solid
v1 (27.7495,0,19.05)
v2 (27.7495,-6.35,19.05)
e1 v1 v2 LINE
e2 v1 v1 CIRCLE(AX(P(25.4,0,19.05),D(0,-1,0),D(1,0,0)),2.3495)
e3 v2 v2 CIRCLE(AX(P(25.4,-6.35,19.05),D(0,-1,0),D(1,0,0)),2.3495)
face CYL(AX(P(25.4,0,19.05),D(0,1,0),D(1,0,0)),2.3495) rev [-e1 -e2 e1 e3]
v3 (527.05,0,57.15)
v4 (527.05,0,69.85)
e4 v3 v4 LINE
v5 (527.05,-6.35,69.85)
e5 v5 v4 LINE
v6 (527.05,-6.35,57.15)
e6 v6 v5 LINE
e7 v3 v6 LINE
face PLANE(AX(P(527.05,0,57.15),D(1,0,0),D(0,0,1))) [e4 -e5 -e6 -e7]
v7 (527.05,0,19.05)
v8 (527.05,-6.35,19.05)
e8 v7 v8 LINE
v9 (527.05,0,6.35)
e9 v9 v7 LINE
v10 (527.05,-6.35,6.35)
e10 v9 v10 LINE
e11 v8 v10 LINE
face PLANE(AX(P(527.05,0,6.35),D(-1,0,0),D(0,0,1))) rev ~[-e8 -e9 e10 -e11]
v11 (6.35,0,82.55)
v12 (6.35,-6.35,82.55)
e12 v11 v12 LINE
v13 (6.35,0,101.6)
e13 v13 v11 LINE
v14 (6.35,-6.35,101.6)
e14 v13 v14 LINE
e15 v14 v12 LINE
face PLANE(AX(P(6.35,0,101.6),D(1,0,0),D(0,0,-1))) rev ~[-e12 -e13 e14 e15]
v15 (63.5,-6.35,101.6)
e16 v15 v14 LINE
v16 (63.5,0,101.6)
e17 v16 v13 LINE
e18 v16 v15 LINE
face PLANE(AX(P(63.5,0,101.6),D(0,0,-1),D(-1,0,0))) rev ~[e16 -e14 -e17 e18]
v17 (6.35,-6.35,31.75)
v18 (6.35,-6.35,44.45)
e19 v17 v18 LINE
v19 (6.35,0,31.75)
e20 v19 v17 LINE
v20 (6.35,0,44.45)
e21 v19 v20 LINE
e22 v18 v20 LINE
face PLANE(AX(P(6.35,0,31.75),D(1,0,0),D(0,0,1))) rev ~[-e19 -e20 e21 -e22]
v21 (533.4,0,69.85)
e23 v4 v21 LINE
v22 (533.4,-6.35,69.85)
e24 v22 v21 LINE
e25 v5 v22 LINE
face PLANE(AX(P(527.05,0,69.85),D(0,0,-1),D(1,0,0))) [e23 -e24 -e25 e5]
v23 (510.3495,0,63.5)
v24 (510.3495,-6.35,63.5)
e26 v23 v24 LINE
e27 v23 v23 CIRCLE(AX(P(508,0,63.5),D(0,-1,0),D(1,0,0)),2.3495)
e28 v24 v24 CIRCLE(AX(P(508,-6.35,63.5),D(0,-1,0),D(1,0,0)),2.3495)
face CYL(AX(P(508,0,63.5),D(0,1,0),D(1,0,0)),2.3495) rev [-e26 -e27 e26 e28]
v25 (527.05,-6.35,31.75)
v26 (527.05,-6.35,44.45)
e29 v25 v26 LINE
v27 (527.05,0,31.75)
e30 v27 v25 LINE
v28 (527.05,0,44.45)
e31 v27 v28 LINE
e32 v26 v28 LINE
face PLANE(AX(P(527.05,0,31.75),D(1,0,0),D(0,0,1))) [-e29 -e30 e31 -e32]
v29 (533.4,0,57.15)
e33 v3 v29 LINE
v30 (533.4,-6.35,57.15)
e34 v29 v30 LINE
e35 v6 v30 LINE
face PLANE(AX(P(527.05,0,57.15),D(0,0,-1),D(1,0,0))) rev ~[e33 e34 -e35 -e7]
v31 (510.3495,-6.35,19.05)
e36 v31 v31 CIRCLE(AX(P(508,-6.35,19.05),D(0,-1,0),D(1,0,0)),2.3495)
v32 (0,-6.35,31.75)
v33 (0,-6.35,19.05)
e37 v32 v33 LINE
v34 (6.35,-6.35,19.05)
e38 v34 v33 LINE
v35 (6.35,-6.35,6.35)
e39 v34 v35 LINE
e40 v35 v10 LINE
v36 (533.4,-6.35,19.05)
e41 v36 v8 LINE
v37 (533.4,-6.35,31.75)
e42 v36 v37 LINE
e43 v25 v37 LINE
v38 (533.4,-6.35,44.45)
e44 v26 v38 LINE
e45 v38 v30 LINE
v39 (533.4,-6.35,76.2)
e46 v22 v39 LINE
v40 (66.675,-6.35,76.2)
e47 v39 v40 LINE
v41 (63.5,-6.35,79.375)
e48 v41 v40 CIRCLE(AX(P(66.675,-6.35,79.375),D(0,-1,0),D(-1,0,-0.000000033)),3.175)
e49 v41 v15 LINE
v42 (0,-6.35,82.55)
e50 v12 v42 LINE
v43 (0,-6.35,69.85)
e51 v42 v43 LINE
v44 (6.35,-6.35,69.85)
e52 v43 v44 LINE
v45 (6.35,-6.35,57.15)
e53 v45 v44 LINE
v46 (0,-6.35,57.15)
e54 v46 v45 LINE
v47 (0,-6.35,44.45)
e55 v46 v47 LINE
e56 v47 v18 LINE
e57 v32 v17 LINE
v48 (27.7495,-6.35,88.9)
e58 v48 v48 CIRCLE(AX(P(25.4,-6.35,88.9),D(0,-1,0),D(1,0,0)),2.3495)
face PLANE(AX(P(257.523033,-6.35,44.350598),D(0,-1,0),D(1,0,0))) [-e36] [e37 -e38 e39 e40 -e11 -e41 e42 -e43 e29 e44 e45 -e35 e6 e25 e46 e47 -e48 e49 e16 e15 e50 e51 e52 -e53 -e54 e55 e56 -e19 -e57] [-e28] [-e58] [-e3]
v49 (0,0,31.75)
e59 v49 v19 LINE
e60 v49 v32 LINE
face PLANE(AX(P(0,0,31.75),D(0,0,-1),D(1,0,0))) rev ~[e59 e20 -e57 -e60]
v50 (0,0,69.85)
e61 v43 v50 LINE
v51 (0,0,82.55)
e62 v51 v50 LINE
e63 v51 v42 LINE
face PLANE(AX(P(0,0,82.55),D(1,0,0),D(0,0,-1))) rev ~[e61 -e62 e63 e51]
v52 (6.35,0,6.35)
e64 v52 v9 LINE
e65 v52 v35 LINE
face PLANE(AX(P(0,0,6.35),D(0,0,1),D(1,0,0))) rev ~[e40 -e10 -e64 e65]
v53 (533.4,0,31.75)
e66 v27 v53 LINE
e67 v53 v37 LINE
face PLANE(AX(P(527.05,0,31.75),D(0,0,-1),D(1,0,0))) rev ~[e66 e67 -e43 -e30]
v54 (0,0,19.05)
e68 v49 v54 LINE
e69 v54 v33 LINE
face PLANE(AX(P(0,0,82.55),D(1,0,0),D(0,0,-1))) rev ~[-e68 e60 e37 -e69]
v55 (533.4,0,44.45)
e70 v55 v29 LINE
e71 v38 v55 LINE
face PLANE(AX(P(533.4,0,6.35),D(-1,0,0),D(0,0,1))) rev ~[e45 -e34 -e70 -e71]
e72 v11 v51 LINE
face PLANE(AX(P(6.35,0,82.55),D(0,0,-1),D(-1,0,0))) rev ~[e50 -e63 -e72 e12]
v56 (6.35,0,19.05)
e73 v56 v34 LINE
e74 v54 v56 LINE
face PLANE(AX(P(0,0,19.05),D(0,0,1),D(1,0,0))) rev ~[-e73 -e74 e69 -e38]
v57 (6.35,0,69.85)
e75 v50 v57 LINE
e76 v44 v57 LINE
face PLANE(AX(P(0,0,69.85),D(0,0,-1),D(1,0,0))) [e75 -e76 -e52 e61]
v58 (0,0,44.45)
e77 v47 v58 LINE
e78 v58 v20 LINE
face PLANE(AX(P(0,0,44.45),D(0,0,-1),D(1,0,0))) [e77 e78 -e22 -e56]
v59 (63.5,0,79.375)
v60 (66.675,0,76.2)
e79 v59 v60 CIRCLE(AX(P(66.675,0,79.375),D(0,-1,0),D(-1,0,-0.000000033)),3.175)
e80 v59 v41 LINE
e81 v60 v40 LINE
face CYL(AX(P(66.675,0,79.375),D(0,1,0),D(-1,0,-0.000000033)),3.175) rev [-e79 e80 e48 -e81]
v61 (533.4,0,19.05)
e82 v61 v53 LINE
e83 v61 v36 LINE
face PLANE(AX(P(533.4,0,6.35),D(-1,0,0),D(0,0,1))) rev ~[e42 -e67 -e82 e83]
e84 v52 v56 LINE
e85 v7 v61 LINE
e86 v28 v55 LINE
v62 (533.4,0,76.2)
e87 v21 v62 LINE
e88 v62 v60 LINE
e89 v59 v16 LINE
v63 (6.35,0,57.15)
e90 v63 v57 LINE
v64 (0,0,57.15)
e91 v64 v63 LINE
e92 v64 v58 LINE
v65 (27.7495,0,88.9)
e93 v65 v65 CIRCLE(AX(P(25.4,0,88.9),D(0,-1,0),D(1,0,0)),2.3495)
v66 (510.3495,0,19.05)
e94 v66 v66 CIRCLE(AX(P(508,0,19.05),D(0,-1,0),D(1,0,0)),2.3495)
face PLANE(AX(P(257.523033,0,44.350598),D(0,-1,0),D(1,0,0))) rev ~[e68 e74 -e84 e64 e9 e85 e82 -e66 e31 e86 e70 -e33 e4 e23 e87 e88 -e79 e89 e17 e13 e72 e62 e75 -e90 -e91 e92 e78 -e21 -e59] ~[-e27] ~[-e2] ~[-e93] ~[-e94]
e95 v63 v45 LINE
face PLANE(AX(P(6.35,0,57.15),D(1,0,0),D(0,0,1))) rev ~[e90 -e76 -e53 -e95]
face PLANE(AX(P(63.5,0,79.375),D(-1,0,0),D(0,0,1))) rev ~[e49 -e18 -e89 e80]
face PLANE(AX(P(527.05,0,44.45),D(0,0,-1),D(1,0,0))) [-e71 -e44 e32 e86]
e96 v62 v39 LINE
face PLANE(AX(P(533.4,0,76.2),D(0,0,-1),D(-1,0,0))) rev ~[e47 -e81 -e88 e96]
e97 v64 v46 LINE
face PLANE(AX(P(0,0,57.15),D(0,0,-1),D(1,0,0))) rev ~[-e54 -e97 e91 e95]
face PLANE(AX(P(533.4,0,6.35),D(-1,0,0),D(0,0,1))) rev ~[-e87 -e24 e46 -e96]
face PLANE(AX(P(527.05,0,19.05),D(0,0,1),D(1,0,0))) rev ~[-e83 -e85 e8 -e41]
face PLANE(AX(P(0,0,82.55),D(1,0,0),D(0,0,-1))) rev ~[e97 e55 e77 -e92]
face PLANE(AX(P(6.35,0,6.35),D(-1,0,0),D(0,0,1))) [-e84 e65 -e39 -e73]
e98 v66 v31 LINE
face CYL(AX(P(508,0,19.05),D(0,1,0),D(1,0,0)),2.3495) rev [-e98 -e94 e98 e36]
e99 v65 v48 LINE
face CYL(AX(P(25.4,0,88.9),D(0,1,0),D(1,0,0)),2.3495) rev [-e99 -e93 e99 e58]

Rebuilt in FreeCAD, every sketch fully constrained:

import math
import FreeCAD as App
import Part
import Sketcher

V = App.Vector
Q = App.Units.Quantity

doc = App.newDocument("Part")
body = doc.addObject("PartDesign::Body", "Body")

# Sketch on XZ plane
sketch1 = body.newObject("Sketcher::SketchObject", "Sketch")
sketch1.AttachmentSupport = (doc.getObject("XZ_Plane"), [""])
sketch1.MapMode = "FlatFace"
sketch1.addGeometry([
    Part.LineSegment(V(533.4, 6.3, 0), V(533.4, 76.2, 0)),  # 0
    Part.LineSegment(V(533.4, 76.2, 0), V(66.7, 76.2, 0)),  # 1
    Part.ArcOfCircle(Part.Circle(V(66.7, 79.4, 0), V(0, 0, 1), 3.2), math.radians(-180), math.radians(-90)),  # 2
    Part.LineSegment(V(63.5, 79.4, 0), V(63.5, 101.6, 0)),  # 3
    Part.LineSegment(V(63.5, 101.6, 0), V(6.3, 101.6, 0)),  # 4
    Part.LineSegment(V(6.3, 101.6, 0), V(6.3, 82.5, 0)),  # 5
    Part.LineSegment(V(6.3, 82.5, 0), V(0, 82.5, 0)),  # 6
    Part.LineSegment(V(0, 82.5, 0), V(0, 6.3, 0)),  # 7
    Part.LineSegment(V(0, 6.3, 0), V(533.4, 6.3, 0)),  # 8
    Part.Circle(V(25.4, 19.1, 0), V(0, 0, 1), 2.3),  # 9
    Part.Circle(V(508, 19.1, 0), V(0, 0, 1), 2.3),  # 10
    Part.Circle(V(25.4, 88.9, 0), V(0, 0, 1), 2.3),  # 11
    Part.Circle(V(508, 63.5, 0), V(0, 0, 1), 2.3),  # 12
], False)
sketch1.addConstraint([
    Sketcher.Constraint("Coincident", 0, 2, 1, 1),
    Sketcher.Constraint("Tangent", 1, 2, 2, 2),
    Sketcher.Constraint("Tangent", 2, 1, 3, 1),
    Sketcher.Constraint("Coincident", 3, 2, 4, 1),
    Sketcher.Constraint("Coincident", 4, 2, 5, 1),
    Sketcher.Constraint("Coincident", 5, 2, 6, 1),
    Sketcher.Constraint("Coincident", 6, 2, 7, 1),
    Sketcher.Constraint("Coincident", 7, 2, 8, 1),
    Sketcher.Constraint("Coincident", 8, 2, 0, 1),
    Sketcher.Constraint("Vertical", 0),
    Sketcher.Constraint("Horizontal", 1),
    Sketcher.Constraint("Vertical", 3),
    Sketcher.Constraint("Horizontal", 4),
    Sketcher.Constraint("Vertical", 5),
    Sketcher.Constraint("Horizontal", 6),
    Sketcher.Constraint("Vertical", 7),
    Sketcher.Constraint("Horizontal", 8),
    Sketcher.Constraint("Equal", 9, 10),
    Sketcher.Constraint("Equal", 10, 11),
    Sketcher.Constraint("Equal", 11, 12),
    Sketcher.Constraint("PointOnObject", 6, 2, -2),
    Sketcher.Constraint("Horizontal", 9, 3, 10, 3),
    Sketcher.Constraint("Vertical", 9, 3, 11, 3),
    Sketcher.Constraint("Vertical", 10, 3, 12, 3),
    Sketcher.Constraint("DistanceX", 8, 1, 8, 2, Q("21 in")),
    Sketcher.Constraint("DistanceY", 7, 2, 7, 1, Q("3 in")),
    Sketcher.Constraint("Diameter", 9, Q("0.185 in")),
    Sketcher.Constraint("DistanceX", -1, 1, 9, 3, Q("1 in")),
    Sketcher.Constraint("DistanceX", -1, 1, 10, 3, Q("20 in")),
    Sketcher.Constraint("DistanceY", -1, 1, 0, 2, Q("3 in")),
    Sketcher.Constraint("DistanceY", -1, 1, 3, 2, Q("4 in")),
    Sketcher.Constraint("Radius", 2, Q("0.125 in")),
    Sketcher.Constraint("DistanceY", 12, 3, 11, 3, Q("1 in")),
    Sketcher.Constraint("DistanceX", 4, 2, 4, 1, Q("2.25 in")),
    Sketcher.Constraint("DistanceX", 6, 2, 6, 1, Q("0.25 in")),
    Sketcher.Constraint("DistanceY", 0, 1, 0, 2, Q("2.75 in")),
    Sketcher.Constraint("DistanceY", -1, 1, 11, 3, Q("3.5 in")),
    Sketcher.Constraint("DistanceY", 7, 2, 9, 3, Q("0.5 in")),
])
pad1 = body.newObject("PartDesign::Pad", "Pad")
pad1.Profile = sketch1
pad1.Length = Q("0.25 in")

# Sketch on XZ plane
sketch2 = body.newObject("Sketcher::SketchObject", "Sketch001")
sketch2.AttachmentSupport = (doc.getObject("XZ_Plane"), [""])
sketch2.MapMode = "FlatFace"
sketch2.addGeometry([
    Part.LineSegment(V(0, 19, 0), V(0, 6, 0)),
    Part.LineSegment(V(0, 6, 0), V(6, 6, 0)),
    Part.LineSegment(V(6, 6, 0), V(6, 19, 0)),
    Part.LineSegment(V(6, 19, 0), V(0, 19, 0)),
], False)
sketch2.addConstraint([
    Sketcher.Constraint("Coincident", 0, 2, 1, 1),
    Sketcher.Constraint("Coincident", 1, 2, 2, 1),
    Sketcher.Constraint("Coincident", 2, 2, 3, 1),
    Sketcher.Constraint("Coincident", 3, 2, 0, 1),
    Sketcher.Constraint("Vertical", 0),
    Sketcher.Constraint("Horizontal", 1),
    Sketcher.Constraint("Vertical", 2),
    Sketcher.Constraint("Horizontal", 3),
    Sketcher.Constraint("PointOnObject", 0, 2, -2),
    Sketcher.Constraint("DistanceY", 0, 2, 0, 1, Q("0.5 in")),
    Sketcher.Constraint("DistanceX", 1, 1, 1, 2, Q("0.25 in")),
    Sketcher.Constraint("DistanceY", -1, 1, 0, 2, Q("0.25 in")),
])
pocket1 = body.newObject("PartDesign::Pocket", "Pocket")
pocket1.Profile = sketch2
pocket1.Type = "ThroughAll"
pocket1.Midplane = True
doc.recompute()

linearpattern = body.newObject("PartDesign::LinearPattern", "LinearPattern")
linearpattern.Originals = [pocket1]
linearpattern.Direction = (doc.getObject("Z_Axis"), [""])
linearpattern.Mode = "offset"
linearpattern.Offset = Q("1 in")
linearpattern.Occurrences = 3
body.Tip = linearpattern

# Sketch on XZ plane
sketch3 = body.newObject("Sketcher::SketchObject", "Sketch002")
sketch3.AttachmentSupport = (doc.getObject("XZ_Plane"), [""])
sketch3.MapMode = "FlatFace"
sketch3.addGeometry([
    Part.LineSegment(V(527, 19, 0), V(527, 6, 0)),
    Part.LineSegment(V(527, 6, 0), V(533, 6, 0)),
    Part.LineSegment(V(533, 6, 0), V(533, 19, 0)),
    Part.LineSegment(V(533, 19, 0), V(527, 19, 0)),
], False)
sketch3.addConstraint([
    Sketcher.Constraint("Coincident", 0, 2, 1, 1),
    Sketcher.Constraint("Coincident", 1, 2, 2, 1),
    Sketcher.Constraint("Coincident", 2, 2, 3, 1),
    Sketcher.Constraint("Coincident", 3, 2, 0, 1),
    Sketcher.Constraint("Vertical", 0),
    Sketcher.Constraint("Horizontal", 1),
    Sketcher.Constraint("Vertical", 2),
    Sketcher.Constraint("Horizontal", 3),
    Sketcher.Constraint("DistanceY", 0, 2, 0, 1, Q("0.5 in")),
    Sketcher.Constraint("DistanceX", -1, 1, 1, 2, Q("21 in")),
    Sketcher.Constraint("DistanceX", 1, 1, 1, 2, Q("0.25 in")),
    Sketcher.Constraint("DistanceY", -1, 1, 0, 2, Q("0.25 in")),
])
pocket2 = body.newObject("PartDesign::Pocket", "Pocket001")
pocket2.Profile = sketch3
pocket2.Type = "ThroughAll"
pocket2.Midplane = True
doc.recompute()

linearpattern2 = body.newObject("PartDesign::LinearPattern", "LinearPattern001")
linearpattern2.Originals = [pocket2]
linearpattern2.Direction = (doc.getObject("Z_Axis"), [""])
linearpattern2.Mode = "offset"
linearpattern2.Offset = Q("1 in")
linearpattern2.Occurrences = 3
body.Tip = linearpattern2

doc.recompute()
